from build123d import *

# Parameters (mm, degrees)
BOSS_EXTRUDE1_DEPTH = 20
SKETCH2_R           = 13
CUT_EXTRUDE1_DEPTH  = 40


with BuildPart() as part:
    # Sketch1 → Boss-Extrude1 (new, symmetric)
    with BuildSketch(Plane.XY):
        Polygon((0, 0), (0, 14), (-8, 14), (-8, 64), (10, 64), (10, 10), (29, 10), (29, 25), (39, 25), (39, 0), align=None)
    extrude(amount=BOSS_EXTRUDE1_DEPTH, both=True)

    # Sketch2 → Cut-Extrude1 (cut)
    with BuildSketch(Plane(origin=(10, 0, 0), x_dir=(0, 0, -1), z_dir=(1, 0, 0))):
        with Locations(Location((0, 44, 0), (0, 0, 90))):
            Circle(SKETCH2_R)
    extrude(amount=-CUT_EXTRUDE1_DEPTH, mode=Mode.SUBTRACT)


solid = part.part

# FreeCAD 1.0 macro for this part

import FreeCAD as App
import Part
import Sketcher


def add_polygon(sketch, points):
    """Adds a closed chain of lines whose ends are joined by coincident constraints."""
    first, n = sketch.GeometryCount, len(points)
    for a, b in zip(points, points[1:] + points[:1]):
        sketch.addGeometry(Part.LineSegment(App.Vector(*a, 0), App.Vector(*b, 0)), False)
    for i in range(n):
        sketch.addConstraint(Sketcher.Constraint("Coincident", first + i, 2, first + (i + 1) % n, 1))

doc = App.newDocument("Part")
body = doc.addObject("PartDesign::Body", "Body")

# Sketch on XY plane
sketch1 = doc.addObject("Sketcher::SketchObject", "Sketch")
body.addObject(sketch1)
sketch1.AttachmentSupport = (doc.XY_Plane, [""])
sketch1.MapMode = "FlatFace"
add_polygon(sketch1, [(0, 14), (0, 0), (39, 0), (39, 25), (29, 25), (29, 10), (10, 10), (10, 64), (-8, 64), (-8, 14)])  # lines 0-9
sketch1.addConstraint(Sketcher.Constraint("Vertical", 0))
sketch1.addConstraint(Sketcher.Constraint("Horizontal", 1))
sketch1.addConstraint(Sketcher.Constraint("Vertical", 2))
sketch1.addConstraint(Sketcher.Constraint("Horizontal", 3))
sketch1.addConstraint(Sketcher.Constraint("Vertical", 4))
sketch1.addConstraint(Sketcher.Constraint("Horizontal", 5))
sketch1.addConstraint(Sketcher.Constraint("Vertical", 6))
sketch1.addConstraint(Sketcher.Constraint("Horizontal", 7))
sketch1.addConstraint(Sketcher.Constraint("Vertical", 8))
sketch1.addConstraint(Sketcher.Constraint("Horizontal", 9))
sketch1.addConstraint(Sketcher.Constraint("Coincident", 0, 2, -1, 1))
sketch1.addConstraint(Sketcher.Constraint("DistanceX", 1, 1, 1, 2, 39.0))
sketch1.addConstraint(Sketcher.Constraint("DistanceX", 3, 2, 3, 1, 10.0))
sketch1.addConstraint(Sketcher.Constraint("DistanceX", 5, 2, 5, 1, 19.0))
sketch1.addConstraint(Sketcher.Constraint("DistanceX", 7, 2, 7, 1, 18.0))
sketch1.addConstraint(Sketcher.Constraint("DistanceY", 0, 2, 0, 1, 14.0))
sketch1.addConstraint(Sketcher.Constraint("DistanceY", 2, 1, 2, 2, 25.0))
sketch1.addConstraint(Sketcher.Constraint("DistanceY", 4, 2, 4, 1, 15.0))
sketch1.addConstraint(Sketcher.Constraint("DistanceY", 6, 1, 6, 2, 54.0))
pad1 = doc.addObject("PartDesign::Pad", "Pad")
body.addObject(pad1)
pad1.Profile = sketch1
pad1.Length = 40
pad1.Midplane = True

# Sketch on YZ plane
sketch2 = doc.addObject("Sketcher::SketchObject", "Sketch001")
body.addObject(sketch2)
sketch2.AttachmentSupport = (doc.YZ_Plane, [""])
sketch2.MapMode = "FlatFace"
sketch2.AttachmentOffset = App.Placement(App.Vector(0, 0, 10), App.Rotation())
sketch2.addGeometry(Part.Circle(App.Vector(44, 0, 0), App.Vector(0, 0, 1), 13), False)
sketch2.addConstraint(Sketcher.Constraint("PointOnObject", 0, 3, -1))
sketch2.addConstraint(Sketcher.Constraint("Diameter", 0, 26.0))
sketch2.addConstraint(Sketcher.Constraint("DistanceX", -1, 1, 0, 3, 44.0))
pocket1 = doc.addObject("PartDesign::Pocket", "Pocket")
body.addObject(pocket1)
pocket1.Profile = sketch2
pocket1.Length = 40

doc.recompute()
